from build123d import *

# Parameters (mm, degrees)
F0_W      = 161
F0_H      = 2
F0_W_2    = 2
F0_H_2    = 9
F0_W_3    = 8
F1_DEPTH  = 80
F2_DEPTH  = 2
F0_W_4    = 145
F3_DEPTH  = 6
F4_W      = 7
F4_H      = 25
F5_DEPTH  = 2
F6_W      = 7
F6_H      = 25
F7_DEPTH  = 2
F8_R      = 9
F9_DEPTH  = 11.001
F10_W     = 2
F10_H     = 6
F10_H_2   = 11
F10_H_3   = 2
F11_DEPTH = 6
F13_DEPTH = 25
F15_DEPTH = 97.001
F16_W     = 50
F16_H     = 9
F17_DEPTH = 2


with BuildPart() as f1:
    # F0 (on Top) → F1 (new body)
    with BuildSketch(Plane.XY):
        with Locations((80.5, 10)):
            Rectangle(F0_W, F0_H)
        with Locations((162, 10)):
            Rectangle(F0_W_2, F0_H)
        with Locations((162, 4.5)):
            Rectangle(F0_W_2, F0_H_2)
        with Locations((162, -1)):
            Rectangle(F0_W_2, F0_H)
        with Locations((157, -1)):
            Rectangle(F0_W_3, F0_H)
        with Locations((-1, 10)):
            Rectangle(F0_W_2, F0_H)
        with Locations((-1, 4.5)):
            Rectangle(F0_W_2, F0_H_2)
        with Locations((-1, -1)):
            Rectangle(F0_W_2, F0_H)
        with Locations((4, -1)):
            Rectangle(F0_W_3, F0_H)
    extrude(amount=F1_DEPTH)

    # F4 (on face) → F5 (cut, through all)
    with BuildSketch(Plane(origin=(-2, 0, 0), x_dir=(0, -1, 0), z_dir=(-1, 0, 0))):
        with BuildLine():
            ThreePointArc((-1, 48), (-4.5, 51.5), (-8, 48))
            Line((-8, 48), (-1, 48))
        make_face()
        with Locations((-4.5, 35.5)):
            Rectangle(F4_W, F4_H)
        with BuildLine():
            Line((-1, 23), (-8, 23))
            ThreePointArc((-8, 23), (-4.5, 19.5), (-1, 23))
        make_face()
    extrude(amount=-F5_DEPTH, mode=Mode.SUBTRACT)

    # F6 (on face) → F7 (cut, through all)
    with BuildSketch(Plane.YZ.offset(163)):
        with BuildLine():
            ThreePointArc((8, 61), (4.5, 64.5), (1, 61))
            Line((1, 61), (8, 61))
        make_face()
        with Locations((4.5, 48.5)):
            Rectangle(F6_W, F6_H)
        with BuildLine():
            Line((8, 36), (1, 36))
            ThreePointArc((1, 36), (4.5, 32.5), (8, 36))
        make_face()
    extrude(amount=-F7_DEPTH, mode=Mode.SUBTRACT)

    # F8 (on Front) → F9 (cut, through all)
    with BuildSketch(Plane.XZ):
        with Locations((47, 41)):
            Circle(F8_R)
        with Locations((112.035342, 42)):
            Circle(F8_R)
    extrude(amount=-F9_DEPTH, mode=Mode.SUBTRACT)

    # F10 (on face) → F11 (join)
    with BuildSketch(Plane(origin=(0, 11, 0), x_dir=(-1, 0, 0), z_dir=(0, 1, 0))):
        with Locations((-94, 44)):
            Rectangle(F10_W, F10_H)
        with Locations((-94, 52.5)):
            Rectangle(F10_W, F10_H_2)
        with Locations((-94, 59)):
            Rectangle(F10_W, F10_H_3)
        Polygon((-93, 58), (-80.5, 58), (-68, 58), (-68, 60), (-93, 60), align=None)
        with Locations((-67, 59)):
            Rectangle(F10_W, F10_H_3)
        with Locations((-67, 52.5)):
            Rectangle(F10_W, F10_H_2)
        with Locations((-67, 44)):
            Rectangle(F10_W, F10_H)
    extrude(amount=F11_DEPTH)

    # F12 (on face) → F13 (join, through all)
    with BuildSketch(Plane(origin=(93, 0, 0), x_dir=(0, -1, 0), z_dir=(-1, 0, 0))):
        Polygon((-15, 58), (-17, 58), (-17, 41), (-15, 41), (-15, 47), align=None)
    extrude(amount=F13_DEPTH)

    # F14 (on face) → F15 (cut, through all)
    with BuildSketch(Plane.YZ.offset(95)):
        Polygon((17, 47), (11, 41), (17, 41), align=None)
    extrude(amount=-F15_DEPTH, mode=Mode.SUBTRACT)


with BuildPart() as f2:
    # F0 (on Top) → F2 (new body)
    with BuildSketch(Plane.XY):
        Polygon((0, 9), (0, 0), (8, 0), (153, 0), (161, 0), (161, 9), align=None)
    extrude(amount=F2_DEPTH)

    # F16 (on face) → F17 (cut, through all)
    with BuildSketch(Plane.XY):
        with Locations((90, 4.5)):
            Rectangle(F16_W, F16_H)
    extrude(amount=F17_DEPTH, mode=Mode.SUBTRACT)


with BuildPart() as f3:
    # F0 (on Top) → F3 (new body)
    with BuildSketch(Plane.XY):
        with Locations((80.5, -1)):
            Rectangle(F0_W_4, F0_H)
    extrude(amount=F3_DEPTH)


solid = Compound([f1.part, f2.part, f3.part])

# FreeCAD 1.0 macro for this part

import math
import FreeCAD as App
import Part
import Sketcher
Q = App.Units.Quantity

doc = App.newDocument("Part")
body = doc.addObject("PartDesign::Body", "Body")

sketch1 = body.newObject("Sketcher::SketchObject", "Sketch")
sketch1.AttachmentSupport = (doc.getObject("XY_Plane"), [""])
sketch1.MapMode = "FlatFace"
sketch1.addGeometry(Part.LineSegment(App.Vector(161, 9, 0), App.Vector(161, 0, 0)), False)
sketch1.addGeometry(Part.LineSegment(App.Vector(161, 0, 0), App.Vector(153, 0, 0)), False)
sketch1.addGeometry(Part.LineSegment(App.Vector(153, 0, 0), App.Vector(153, -2, 0)), False)
sketch1.addGeometry(Part.LineSegment(App.Vector(153, -2, 0), App.Vector(163, -2, 0)), False)
sketch1.addGeometry(Part.LineSegment(App.Vector(163, -2, 0), App.Vector(163, 11, 0)), False)
sketch1.addGeometry(Part.LineSegment(App.Vector(163, 11, 0), App.Vector(-2, 11, 0)), False)
sketch1.addGeometry(Part.LineSegment(App.Vector(-2, 11, 0), App.Vector(-2, -2, 0)), False)
sketch1.addGeometry(Part.LineSegment(App.Vector(-2, -2, 0), App.Vector(8, -2, 0)), False)
sketch1.addGeometry(Part.LineSegment(App.Vector(8, -2, 0), App.Vector(8, 0, 0)), False)
sketch1.addGeometry(Part.LineSegment(App.Vector(8, 0, 0), App.Vector(0, 0, 0)), False)
sketch1.addGeometry(Part.LineSegment(App.Vector(0, 0, 0), App.Vector(0, 9, 0)), False)
sketch1.addGeometry(Part.LineSegment(App.Vector(0, 9, 0), App.Vector(161, 9, 0)), False)
sketch1.addConstraint(Sketcher.Constraint("Coincident", 0, 2, 1, 1))
sketch1.addConstraint(Sketcher.Constraint("Coincident", 1, 2, 2, 1))
sketch1.addConstraint(Sketcher.Constraint("Coincident", 2, 2, 3, 1))
sketch1.addConstraint(Sketcher.Constraint("Coincident", 3, 2, 4, 1))
sketch1.addConstraint(Sketcher.Constraint("Coincident", 4, 2, 5, 1))
sketch1.addConstraint(Sketcher.Constraint("Coincident", 5, 2, 6, 1))
sketch1.addConstraint(Sketcher.Constraint("Coincident", 6, 2, 7, 1))
sketch1.addConstraint(Sketcher.Constraint("Coincident", 7, 2, 8, 1))
sketch1.addConstraint(Sketcher.Constraint("Coincident", 8, 2, 9, 1))
sketch1.addConstraint(Sketcher.Constraint("Coincident", 9, 2, 10, 1))
sketch1.addConstraint(Sketcher.Constraint("Coincident", 10, 2, 11, 1))
sketch1.addConstraint(Sketcher.Constraint("Coincident", 11, 2, 0, 1))
sketch1.addConstraint(Sketcher.Constraint("Vertical", 0))
sketch1.addConstraint(Sketcher.Constraint("Horizontal", 1))
sketch1.addConstraint(Sketcher.Constraint("Vertical", 2))
sketch1.addConstraint(Sketcher.Constraint("Horizontal", 3))
sketch1.addConstraint(Sketcher.Constraint("Vertical", 4))
sketch1.addConstraint(Sketcher.Constraint("Horizontal", 5))
sketch1.addConstraint(Sketcher.Constraint("Vertical", 6))
sketch1.addConstraint(Sketcher.Constraint("Horizontal", 7))
sketch1.addConstraint(Sketcher.Constraint("Vertical", 8))
sketch1.addConstraint(Sketcher.Constraint("Horizontal", 9))
sketch1.addConstraint(Sketcher.Constraint("Vertical", 10))
sketch1.addConstraint(Sketcher.Constraint("Horizontal", 11))
sketch1.addConstraint(Sketcher.Constraint("Coincident", 9, 2, -1, 1))
sketch1.addConstraint(Sketcher.Constraint("PointOnObject", 0, 2, -1))
sketch1.addConstraint(Sketcher.Constraint("Horizontal", 3, 2, 6, 2))
sketch1.addConstraint(Sketcher.Constraint("Equal", 3, 7))
sketch1.addConstraint(Sketcher.Constraint("Equal", 1, 9))
sketch1.addConstraint(Sketcher.Constraint("DistanceX", 1, 2, 1, 1, Q("8 mm")))
sketch1.addConstraint(Sketcher.Constraint("DistanceX", 3, 1, 3, 2, Q("10 mm")))
sketch1.addConstraint(Sketcher.Constraint("DistanceX", 5, 2, 5, 1, Q("165 mm")))
sketch1.addConstraint(Sketcher.Constraint("DistanceY", 0, 2, 0, 1, Q("9 mm")))
sketch1.addConstraint(Sketcher.Constraint("DistanceY", 2, 2, 2, 1, Q("2 mm")))
sketch1.addConstraint(Sketcher.Constraint("DistanceY", 4, 1, 4, 2, Q("13 mm")))
pad1 = body.newObject("PartDesign::Pad", "Pad")
pad1.Profile = sketch1
pad1.Length = 80

sketch2 = body.newObject("Sketcher::SketchObject", "Sketch001")
sketch2.AttachmentSupport = (doc.getObject("YZ_Plane"), [""])
sketch2.MapMode = "FlatFace"
sketch2.AttachmentOffset = App.Placement(App.Vector(0, 0, -2), App.Rotation())
sketch2.addGeometry(Part.ArcOfCircle(Part.Circle(App.Vector(4.5, 48, 0), App.Vector(0, 0, 1), 3.5), math.radians(0), math.radians(180)), False)
sketch2.addGeometry(Part.LineSegment(App.Vector(8, 48, 0), App.Vector(8, 23, 0)), False)
sketch2.addGeometry(Part.ArcOfCircle(Part.Circle(App.Vector(4.5, 23, 0), App.Vector(0, 0, 1), 3.5), math.radians(180), math.radians(360)), False)
sketch2.addGeometry(Part.LineSegment(App.Vector(1, 23, 0), App.Vector(1, 48, 0)), False)
sketch2.addConstraint(Sketcher.Constraint("Tangent", 0, 1, 1, 1))
sketch2.addConstraint(Sketcher.Constraint("Tangent", 1, 2, 2, 2))
sketch2.addConstraint(Sketcher.Constraint("Tangent", 2, 1, 3, 1))
sketch2.addConstraint(Sketcher.Constraint("Tangent", 3, 2, 0, 2))
sketch2.addConstraint(Sketcher.Constraint("Vertical", 1))
sketch2.addConstraint(Sketcher.Constraint("Vertical", 3))
sketch2.addConstraint(Sketcher.Constraint("Radius", 0, Q("3.5 mm")))
sketch2.addConstraint(Sketcher.Constraint("DistanceY", 1, 2, 1, 1, Q("25 mm")))
sketch2.addConstraint(Sketcher.Constraint("DistanceY", -1, 1, 0, 3, Q("48 mm")))
sketch2.addConstraint(Sketcher.Constraint("DistanceX", -1, 1, 0, 1, Q("8 mm")))
pocket1 = body.newObject("PartDesign::Pocket", "Pocket")
pocket1.Profile = sketch2
pocket1.Length = 2
pocket1.Reversed = True

sketch3 = body.newObject("Sketcher::SketchObject", "Sketch002")
sketch3.AttachmentSupport = (doc.getObject("YZ_Plane"), [""])
sketch3.MapMode = "FlatFace"
sketch3.AttachmentOffset = App.Placement(App.Vector(0, 0, 163), App.Rotation())
sketch3.addGeometry(Part.ArcOfCircle(Part.Circle(App.Vector(4.5, 61, 0), App.Vector(0, 0, 1), 3.5), math.radians(0), math.radians(180)), False)
sketch3.addGeometry(Part.LineSegment(App.Vector(1, 61, 0), App.Vector(1, 36, 0)), False)
sketch3.addGeometry(Part.ArcOfCircle(Part.Circle(App.Vector(4.5, 36, 0), App.Vector(0, 0, 1), 3.5), math.radians(180), math.radians(360)), False)
sketch3.addGeometry(Part.LineSegment(App.Vector(8, 36, 0), App.Vector(8, 61, 0)), False)
sketch3.addConstraint(Sketcher.Constraint("Tangent", 0, 2, 1, 1))
sketch3.addConstraint(Sketcher.Constraint("Tangent", 1, 2, 2, 1))
sketch3.addConstraint(Sketcher.Constraint("Tangent", 2, 2, 3, 1))
sketch3.addConstraint(Sketcher.Constraint("Tangent", 3, 2, 0, 1))
sketch3.addConstraint(Sketcher.Constraint("Vertical", 1))
sketch3.addConstraint(Sketcher.Constraint("Vertical", 3))
sketch3.addConstraint(Sketcher.Constraint("Radius", 0, Q("3.5 mm")))
sketch3.addConstraint(Sketcher.Constraint("DistanceY", 1, 2, 1, 1, Q("25 mm")))
sketch3.addConstraint(Sketcher.Constraint("DistanceY", -1, 1, 0, 3, Q("61 mm")))
sketch3.addConstraint(Sketcher.Constraint("DistanceX", -1, 1, 0, 2, Q("1 mm")))
pocket2 = body.newObject("PartDesign::Pocket", "Pocket001")
pocket2.Profile = sketch3
pocket2.Length = 2

sketch4 = body.newObject("Sketcher::SketchObject", "Sketch003")
sketch4.AttachmentSupport = (doc.getObject("XZ_Plane"), [""])
sketch4.MapMode = "FlatFace"
sketch4.addGeometry(Part.Circle(App.Vector(47, 41, 0), App.Vector(0, 0, 1), 9), False)
sketch4.addGeometry(Part.Circle(App.Vector(112, 42, 0), App.Vector(0, 0, 1), 9), False)
sketch4.addConstraint(Sketcher.Constraint("Equal", 0, 1))
sketch4.addConstraint(Sketcher.Constraint("Diameter", 0, Q("18 mm")))
sketch4.addConstraint(Sketcher.Constraint("DistanceX", -1, 1, 0, 3, Q("47 mm")))
sketch4.addConstraint(Sketcher.Constraint("DistanceY", -1, 1, 0, 3, Q("41 mm")))
sketch4.addConstraint(Sketcher.Constraint("DistanceY", -1, 1, 1, 3, Q("42 mm")))
sketch4.addConstraint(Sketcher.Constraint("DistanceX", -1, 1, 1, 3, Q("112.035342 mm")))
pocket3 = body.newObject("PartDesign::Pocket", "Pocket002")
pocket3.Profile = sketch4
pocket3.Type = "ThroughAll"

sketch5 = body.newObject("Sketcher::SketchObject", "Sketch004")
sketch5.AttachmentSupport = (doc.getObject("XZ_Plane"), [""])
sketch5.MapMode = "FlatFace"
sketch5.AttachmentOffset = App.Placement(App.Vector(0, 0, -11), App.Rotation())
sketch5.addGeometry(Part.LineSegment(App.Vector(95, 41, 0), App.Vector(93, 41, 0)), False)
sketch5.addGeometry(Part.LineSegment(App.Vector(93, 41, 0), App.Vector(93, 58, 0)), False)
sketch5.addGeometry(Part.LineSegment(App.Vector(93, 58, 0), App.Vector(68, 58, 0)), False)
sketch5.addGeometry(Part.LineSegment(App.Vector(68, 58, 0), App.Vector(68, 41, 0)), False)
sketch5.addGeometry(Part.LineSegment(App.Vector(68, 41, 0), App.Vector(66, 41, 0)), False)
sketch5.addGeometry(Part.LineSegment(App.Vector(66, 41, 0), App.Vector(66, 60, 0)), False)
sketch5.addGeometry(Part.LineSegment(App.Vector(66, 60, 0), App.Vector(95, 60, 0)), False)
sketch5.addGeometry(Part.LineSegment(App.Vector(95, 60, 0), App.Vector(95, 41, 0)), False)
sketch5.addConstraint(Sketcher.Constraint("Coincident", 0, 2, 1, 1))
sketch5.addConstraint(Sketcher.Constraint("Coincident", 1, 2, 2, 1))
sketch5.addConstraint(Sketcher.Constraint("Coincident", 2, 2, 3, 1))
sketch5.addConstraint(Sketcher.Constraint("Coincident", 3, 2, 4, 1))
sketch5.addConstraint(Sketcher.Constraint("Coincident", 4, 2, 5, 1))
sketch5.addConstraint(Sketcher.Constraint("Coincident", 5, 2, 6, 1))
sketch5.addConstraint(Sketcher.Constraint("Coincident", 6, 2, 7, 1))
sketch5.addConstraint(Sketcher.Constraint("Coincident", 7, 2, 0, 1))
sketch5.addConstraint(Sketcher.Constraint("Horizontal", 0))
sketch5.addConstraint(Sketcher.Constraint("Vertical", 1))
sketch5.addConstraint(Sketcher.Constraint("Horizontal", 2))
sketch5.addConstraint(Sketcher.Constraint("Vertical", 3))
sketch5.addConstraint(Sketcher.Constraint("Horizontal", 4))
sketch5.addConstraint(Sketcher.Constraint("Vertical", 5))
sketch5.addConstraint(Sketcher.Constraint("Horizontal", 6))
sketch5.addConstraint(Sketcher.Constraint("Vertical", 7))
sketch5.addConstraint(Sketcher.Constraint("Horizontal", 0, 2, 3, 2))
sketch5.addConstraint(Sketcher.Constraint("Equal", 0, 4))
sketch5.addConstraint(Sketcher.Constraint("DistanceX", 0, 2, 0, 1, Q("2 mm")))
sketch5.addConstraint(Sketcher.Constraint("DistanceX", 2, 2, 2, 1, Q("25 mm")))
sketch5.addConstraint(Sketcher.Constraint("DistanceY", 1, 1, 1, 2, Q("17 mm")))
sketch5.addConstraint(Sketcher.Constraint("DistanceY", 5, 1, 5, 2, Q("19 mm")))
sketch5.addConstraint(Sketcher.Constraint("DistanceX", -1, 1, 0, 2, Q("93 mm")))
sketch5.addConstraint(Sketcher.Constraint("DistanceY", -1, 1, 0, 2, Q("41 mm")))
pad2 = body.newObject("PartDesign::Pad", "Pad001")
pad2.Profile = sketch5
pad2.Length = 6
pad2.Reversed = True

sketch6 = body.newObject("Sketcher::SketchObject", "Sketch005")
sketch6.AttachmentSupport = (doc.getObject("YZ_Plane"), [""])
sketch6.MapMode = "FlatFace"
sketch6.AttachmentOffset = App.Placement(App.Vector(0, 0, 93), App.Rotation())
sketch6.addGeometry(Part.LineSegment(App.Vector(15, 58, 0), App.Vector(17, 58, 0)), False)
sketch6.addGeometry(Part.LineSegment(App.Vector(17, 58, 0), App.Vector(17, 41, 0)), False)
sketch6.addGeometry(Part.LineSegment(App.Vector(17, 41, 0), App.Vector(15, 41, 0)), False)
sketch6.addGeometry(Part.LineSegment(App.Vector(15, 41, 0), App.Vector(15, 58, 0)), False)
sketch6.addConstraint(Sketcher.Constraint("Coincident", 0, 2, 1, 1))
sketch6.addConstraint(Sketcher.Constraint("Coincident", 1, 2, 2, 1))
sketch6.addConstraint(Sketcher.Constraint("Coincident", 2, 2, 3, 1))
sketch6.addConstraint(Sketcher.Constraint("Coincident", 3, 2, 0, 1))
sketch6.addConstraint(Sketcher.Constraint("Horizontal", 0))
sketch6.addConstraint(Sketcher.Constraint("Vertical", 1))
sketch6.addConstraint(Sketcher.Constraint("Horizontal", 2))
sketch6.addConstraint(Sketcher.Constraint("Vertical", 3))
sketch6.addConstraint(Sketcher.Constraint("DistanceX", 0, 1, 0, 2, Q("2 mm")))
sketch6.addConstraint(Sketcher.Constraint("DistanceY", 1, 2, 1, 1, Q("17 mm")))
sketch6.addConstraint(Sketcher.Constraint("DistanceX", -1, 1, 0, 2, Q("17 mm")))
sketch6.addConstraint(Sketcher.Constraint("DistanceY", -1, 1, 0, 2, Q("58 mm")))
pad3 = body.newObject("PartDesign::Pad", "Pad002")
pad3.Profile = sketch6
pad3.Type = "UpToLast"
pad3.Reversed = True

sketch7 = body.newObject("Sketcher::SketchObject", "Sketch006")
sketch7.AttachmentSupport = (doc.getObject("YZ_Plane"), [""])
sketch7.MapMode = "FlatFace"
sketch7.AttachmentOffset = App.Placement(App.Vector(0, 0, 95), App.Rotation())
sketch7.addGeometry(Part.LineSegment(App.Vector(17, 47, 0), App.Vector(11, 41, 0)), False)
sketch7.addGeometry(Part.LineSegment(App.Vector(11, 41, 0), App.Vector(17, 41, 0)), False)
sketch7.addGeometry(Part.LineSegment(App.Vector(17, 41, 0), App.Vector(17, 47, 0)), False)
sketch7.addConstraint(Sketcher.Constraint("Coincident", 0, 2, 1, 1))
sketch7.addConstraint(Sketcher.Constraint("Coincident", 1, 2, 2, 1))
sketch7.addConstraint(Sketcher.Constraint("Coincident", 2, 2, 0, 1))
sketch7.addConstraint(Sketcher.Constraint("Horizontal", 1))
sketch7.addConstraint(Sketcher.Constraint("Vertical", 2))
sketch7.addConstraint(Sketcher.Constraint("Equal", 1, 2))
sketch7.addConstraint(Sketcher.Constraint("DistanceX", 1, 1, 1, 2, Q("6 mm")))
sketch7.addConstraint(Sketcher.Constraint("DistanceX", -1, 1, 0, 2, Q("11 mm")))
sketch7.addConstraint(Sketcher.Constraint("DistanceY", -1, 1, 0, 2, Q("41 mm")))
pocket4 = body.newObject("PartDesign::Pocket", "Pocket003")
pocket4.Profile = sketch7
pocket4.Type = "ThroughAll"
body2 = doc.addObject("PartDesign::Body", "Body001")
body2.AllowCompound = True

sketch8 = body2.newObject("Sketcher::SketchObject", "Sketch007")
sketch8.AttachmentSupport = (doc.getObject("XY_Plane001"), [""])
sketch8.MapMode = "FlatFace"
sketch8.addGeometry(Part.LineSegment(App.Vector(0, 9, 0), App.Vector(0, 0, 0)), False)
sketch8.addGeometry(Part.LineSegment(App.Vector(0, 0, 0), App.Vector(161, 0, 0)), False)
sketch8.addGeometry(Part.LineSegment(App.Vector(161, 0, 0), App.Vector(161, 9, 0)), False)
sketch8.addGeometry(Part.LineSegment(App.Vector(161, 9, 0), App.Vector(0, 9, 0)), False)
sketch8.addConstraint(Sketcher.Constraint("Coincident", 0, 2, 1, 1))
sketch8.addConstraint(Sketcher.Constraint("Coincident", 1, 2, 2, 1))
sketch8.addConstraint(Sketcher.Constraint("Coincident", 2, 2, 3, 1))
sketch8.addConstraint(Sketcher.Constraint("Coincident", 3, 2, 0, 1))
sketch8.addConstraint(Sketcher.Constraint("Vertical", 0))
sketch8.addConstraint(Sketcher.Constraint("Horizontal", 1))
sketch8.addConstraint(Sketcher.Constraint("Vertical", 2))
sketch8.addConstraint(Sketcher.Constraint("Horizontal", 3))
sketch8.addConstraint(Sketcher.Constraint("Coincident", 0, 2, -1, 1))
sketch8.addConstraint(Sketcher.Constraint("DistanceX", 1, 1, 1, 2, Q("161 mm")))
sketch8.addConstraint(Sketcher.Constraint("DistanceY", 0, 2, 0, 1, Q("9 mm")))
pad4 = body2.newObject("PartDesign::Pad", "Pad003")
pad4.Profile = sketch8
pad4.Length = 2

sketch9 = body2.newObject("Sketcher::SketchObject", "Sketch008")
sketch9.AttachmentSupport = (doc.getObject("XY_Plane001"), [""])
sketch9.MapMode = "FlatFace"
sketch9.addGeometry(Part.LineSegment(App.Vector(65, 9, 0), App.Vector(65, 0, 0)), False)
sketch9.addGeometry(Part.LineSegment(App.Vector(65, 0, 0), App.Vector(115, 0, 0)), False)
sketch9.addGeometry(Part.LineSegment(App.Vector(115, 0, 0), App.Vector(115, 9, 0)), False)
sketch9.addGeometry(Part.LineSegment(App.Vector(115, 9, 0), App.Vector(65, 9, 0)), False)
sketch9.addConstraint(Sketcher.Constraint("Coincident", 0, 2, 1, 1))
sketch9.addConstraint(Sketcher.Constraint("Coincident", 1, 2, 2, 1))
sketch9.addConstraint(Sketcher.Constraint("Coincident", 2, 2, 3, 1))
sketch9.addConstraint(Sketcher.Constraint("Coincident", 3, 2, 0, 1))
sketch9.addConstraint(Sketcher.Constraint("Vertical", 0))
sketch9.addConstraint(Sketcher.Constraint("Horizontal", 1))
sketch9.addConstraint(Sketcher.Constraint("Vertical", 2))
sketch9.addConstraint(Sketcher.Constraint("Horizontal", 3))
sketch9.addConstraint(Sketcher.Constraint("PointOnObject", 0, 2, -1))
sketch9.addConstraint(Sketcher.Constraint("DistanceX", 1, 1, 1, 2, Q("50 mm")))
sketch9.addConstraint(Sketcher.Constraint("DistanceY", 0, 2, 0, 1, Q("9 mm")))
sketch9.addConstraint(Sketcher.Constraint("DistanceX", -1, 1, 0, 2, Q("65 mm")))
pocket5 = body2.newObject("PartDesign::Pocket", "Pocket004")
pocket5.Profile = sketch9
pocket5.Type = "ThroughAll"
pocket5.Reversed = True
body3 = doc.addObject("PartDesign::Body", "Body002")

sketch10 = body3.newObject("Sketcher::SketchObject", "Sketch009")
sketch10.AttachmentSupport = (doc.getObject("XY_Plane002"), [""])
sketch10.MapMode = "FlatFace"
sketch10.addGeometry(Part.LineSegment(App.Vector(8, 0, 0), App.Vector(8, -2, 0)), False)
sketch10.addGeometry(Part.LineSegment(App.Vector(8, -2, 0), App.Vector(153, -2, 0)), False)
sketch10.addGeometry(Part.LineSegment(App.Vector(153, -2, 0), App.Vector(153, 0, 0)), False)
sketch10.addGeometry(Part.LineSegment(App.Vector(153, 0, 0), App.Vector(8, 0, 0)), False)
sketch10.addConstraint(Sketcher.Constraint("Coincident", 0, 2, 1, 1))
sketch10.addConstraint(Sketcher.Constraint("Coincident", 1, 2, 2, 1))
sketch10.addConstraint(Sketcher.Constraint("Coincident", 2, 2, 3, 1))
sketch10.addConstraint(Sketcher.Constraint("Coincident", 3, 2, 0, 1))
sketch10.addConstraint(Sketcher.Constraint("Vertical", 0))
sketch10.addConstraint(Sketcher.Constraint("Horizontal", 1))
sketch10.addConstraint(Sketcher.Constraint("Vertical", 2))
sketch10.addConstraint(Sketcher.Constraint("Horizontal", 3))
sketch10.addConstraint(Sketcher.Constraint("PointOnObject", 2, 2, -1))
sketch10.addConstraint(Sketcher.Constraint("DistanceX", 1, 1, 1, 2, Q("145 mm")))
sketch10.addConstraint(Sketcher.Constraint("DistanceY", 0, 2, 0, 1, Q("2 mm")))
sketch10.addConstraint(Sketcher.Constraint("DistanceX", -1, 1, 0, 2, Q("8 mm")))
pad5 = body3.newObject("PartDesign::Pad", "Pad004")
pad5.Profile = sketch10
pad5.Length = 6

doc.recompute()
